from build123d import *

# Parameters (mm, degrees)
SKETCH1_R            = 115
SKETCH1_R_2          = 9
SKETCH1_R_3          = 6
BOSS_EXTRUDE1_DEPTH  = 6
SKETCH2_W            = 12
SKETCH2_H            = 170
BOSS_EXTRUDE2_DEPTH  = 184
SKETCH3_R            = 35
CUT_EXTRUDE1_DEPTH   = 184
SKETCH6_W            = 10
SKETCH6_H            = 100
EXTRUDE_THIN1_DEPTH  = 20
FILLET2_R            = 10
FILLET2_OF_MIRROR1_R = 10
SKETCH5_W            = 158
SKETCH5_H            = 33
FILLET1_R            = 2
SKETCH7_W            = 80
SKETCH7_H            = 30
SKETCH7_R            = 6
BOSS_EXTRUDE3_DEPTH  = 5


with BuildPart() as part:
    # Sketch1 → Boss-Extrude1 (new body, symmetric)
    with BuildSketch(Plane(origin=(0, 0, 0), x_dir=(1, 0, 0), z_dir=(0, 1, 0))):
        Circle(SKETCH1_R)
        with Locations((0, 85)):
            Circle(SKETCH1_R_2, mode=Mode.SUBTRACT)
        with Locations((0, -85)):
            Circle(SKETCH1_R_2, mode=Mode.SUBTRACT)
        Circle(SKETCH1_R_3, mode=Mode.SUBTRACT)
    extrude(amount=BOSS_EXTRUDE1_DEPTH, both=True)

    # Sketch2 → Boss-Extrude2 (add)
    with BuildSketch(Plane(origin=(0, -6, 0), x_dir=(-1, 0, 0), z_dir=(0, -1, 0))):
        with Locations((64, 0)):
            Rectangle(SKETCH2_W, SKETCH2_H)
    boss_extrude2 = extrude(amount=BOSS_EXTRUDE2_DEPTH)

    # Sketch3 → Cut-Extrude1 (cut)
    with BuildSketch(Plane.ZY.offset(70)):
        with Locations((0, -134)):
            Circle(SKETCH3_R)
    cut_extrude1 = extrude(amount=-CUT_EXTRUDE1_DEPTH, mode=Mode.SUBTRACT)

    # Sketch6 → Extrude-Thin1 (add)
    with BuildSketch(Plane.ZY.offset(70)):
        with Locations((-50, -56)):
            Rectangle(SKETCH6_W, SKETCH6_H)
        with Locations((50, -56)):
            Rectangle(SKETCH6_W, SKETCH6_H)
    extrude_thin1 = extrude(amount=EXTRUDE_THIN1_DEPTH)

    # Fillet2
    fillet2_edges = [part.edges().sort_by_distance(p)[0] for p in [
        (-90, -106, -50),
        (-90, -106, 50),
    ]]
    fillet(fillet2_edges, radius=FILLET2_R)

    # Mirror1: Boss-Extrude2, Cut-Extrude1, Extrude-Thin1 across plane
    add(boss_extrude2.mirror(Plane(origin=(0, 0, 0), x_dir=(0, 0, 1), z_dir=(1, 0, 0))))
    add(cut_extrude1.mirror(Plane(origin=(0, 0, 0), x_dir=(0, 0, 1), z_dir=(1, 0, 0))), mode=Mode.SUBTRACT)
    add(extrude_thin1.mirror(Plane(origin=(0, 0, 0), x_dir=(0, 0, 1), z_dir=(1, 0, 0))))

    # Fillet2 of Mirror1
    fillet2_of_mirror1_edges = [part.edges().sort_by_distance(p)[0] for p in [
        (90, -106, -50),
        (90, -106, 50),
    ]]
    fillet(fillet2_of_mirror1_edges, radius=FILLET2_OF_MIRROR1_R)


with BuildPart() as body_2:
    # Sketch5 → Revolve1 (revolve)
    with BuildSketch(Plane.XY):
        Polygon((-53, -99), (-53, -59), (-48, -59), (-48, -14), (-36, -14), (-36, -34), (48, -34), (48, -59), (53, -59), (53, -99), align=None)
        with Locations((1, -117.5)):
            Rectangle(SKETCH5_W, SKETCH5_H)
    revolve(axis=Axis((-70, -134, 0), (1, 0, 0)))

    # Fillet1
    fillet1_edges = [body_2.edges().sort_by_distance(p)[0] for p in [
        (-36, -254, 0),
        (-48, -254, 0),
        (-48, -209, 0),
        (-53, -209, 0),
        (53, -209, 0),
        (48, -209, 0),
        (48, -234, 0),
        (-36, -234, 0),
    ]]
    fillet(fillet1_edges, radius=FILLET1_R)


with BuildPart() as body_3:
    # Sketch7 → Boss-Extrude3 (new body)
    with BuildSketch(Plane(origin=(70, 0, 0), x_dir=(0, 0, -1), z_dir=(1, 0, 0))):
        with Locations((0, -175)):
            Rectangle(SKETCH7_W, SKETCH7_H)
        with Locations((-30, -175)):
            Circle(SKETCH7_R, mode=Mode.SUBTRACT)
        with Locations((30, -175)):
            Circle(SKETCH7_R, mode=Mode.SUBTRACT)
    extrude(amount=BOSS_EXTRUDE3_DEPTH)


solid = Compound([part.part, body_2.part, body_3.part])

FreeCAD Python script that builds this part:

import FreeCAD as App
import Part
import Sketcher
from FreeCAD import Vector


def edges_at(feature, points):
    """Names of the edges that pass closest to the given points."""
    edges = feature.Shape.Edges
    near = lambda p: min(range(len(edges)), key=lambda i: edges[i].distToShape(Part.Vertex(*p))[0])
    return sorted({f"Edge{near(p) + 1}" for p in points})

doc = App.newDocument("Part")
body = doc.addObject("PartDesign::Body", "Body")

sketch1 = body.newObject("Sketcher::SketchObject", "Sketch")
sketch1.AttachmentSupport = (doc.getObject("XZ_Plane"), [""])
sketch1.MapMode = "FlatFace"
sketch1.addGeometry(Part.Circle(Vector(0, 0, 0), Vector(0, 0, 1), 115), False)
sketch1.addGeometry(Part.Circle(Vector(0, 85, 0), Vector(0, 0, 1), 9), False)
sketch1.addGeometry(Part.Circle(Vector(0, 0, 0), Vector(0, 0, 1), 6), False)
sketch1.addGeometry(Part.Circle(Vector(0, -85, 0), Vector(0, 0, 1), 9), False)
sketch1.addConstraint(Sketcher.Constraint("Coincident", 0, 3, -1, 1))
sketch1.addConstraint(Sketcher.Constraint("Coincident", 2, 3, -1, 1))
sketch1.addConstraint(Sketcher.Constraint("Equal", 1, 3))
sketch1.addConstraint(Sketcher.Constraint("Symmetric", 1, 3, 3, 3, -1, 1))
sketch1.addConstraint(Sketcher.Constraint("PointOnObject", 1, 3, -2))
sketch1.addConstraint(Sketcher.Constraint("Diameter", 0, 230.0))
sketch1.addConstraint(Sketcher.Constraint("Diameter", 1, 18.0))
sketch1.addConstraint(Sketcher.Constraint("Diameter", 2, 12.0))
sketch1.addConstraint(Sketcher.Constraint("DistanceY", -1, 1, 1, 3, 85.0))
pad1 = body.newObject("PartDesign::Pad", "Pad")
pad1.Profile = sketch1
pad1.Length = 12
pad1.Midplane = True

sketch2 = body.newObject("Sketcher::SketchObject", "Sketch001")
sketch2.AttachmentSupport = (doc.getObject("XZ_Plane"), [""])
sketch2.MapMode = "FlatFace"
sketch2.AttachmentOffset = App.Placement(Vector(0, 0, 6), App.Rotation())
sketch2.addGeometry(Part.LineSegment(Vector(-58, -85, 0), Vector(-58, 85, 0)), False)
sketch2.addGeometry(Part.LineSegment(Vector(-58, 85, 0), Vector(-70, 85, 0)), False)
sketch2.addGeometry(Part.LineSegment(Vector(-70, 85, 0), Vector(-70, -85, 0)), False)
sketch2.addGeometry(Part.LineSegment(Vector(-70, -85, 0), Vector(-58, -85, 0)), False)
sketch2.addConstraint(Sketcher.Constraint("Coincident", 0, 2, 1, 1))
sketch2.addConstraint(Sketcher.Constraint("Coincident", 1, 2, 2, 1))
sketch2.addConstraint(Sketcher.Constraint("Coincident", 2, 2, 3, 1))
sketch2.addConstraint(Sketcher.Constraint("Coincident", 3, 2, 0, 1))
sketch2.addConstraint(Sketcher.Constraint("Vertical", 0))
sketch2.addConstraint(Sketcher.Constraint("Horizontal", 1))
sketch2.addConstraint(Sketcher.Constraint("Vertical", 2))
sketch2.addConstraint(Sketcher.Constraint("Horizontal", 3))
sketch2.addConstraint(Sketcher.Constraint("DistanceX", 1, 2, 1, 1, 12.0))
sketch2.addConstraint(Sketcher.Constraint("DistanceY", 0, 1, 0, 2, 170.0))
sketch2.addConstraint(Sketcher.Constraint("DistanceX", 0, 2, -1, 1, 58.0))
sketch2.addConstraint(Sketcher.Constraint("DistanceY", -1, 1, 0, 2, 85.0))
pad2 = body.newObject("PartDesign::Pad", "Pad001")
pad2.Profile = sketch2
pad2.Length = 184

sketch3 = body.newObject("Sketcher::SketchObject", "Sketch002")
sketch3.AttachmentSupport = (doc.getObject("YZ_Plane"), [""])
sketch3.MapMode = "FlatFace"
sketch3.AttachmentOffset = App.Placement(Vector(0, 0, -70), App.Rotation())
sketch3.addGeometry(Part.Circle(Vector(-134, 0, 0), Vector(0, 0, 1), 35), False)
sketch3.addConstraint(Sketcher.Constraint("PointOnObject", 0, 3, -1))
sketch3.addConstraint(Sketcher.Constraint("Diameter", 0, 70.0))
sketch3.addConstraint(Sketcher.Constraint("DistanceX", 0, 3, -1, 1, 134.0))
pocket1 = body.newObject("PartDesign::Pocket", "Pocket")
pocket1.Profile = sketch3
pocket1.Length = 184
pocket1.Reversed = True

sketch4 = body.newObject("Sketcher::SketchObject", "Sketch003")
sketch4.AttachmentSupport = (doc.getObject("YZ_Plane"), [""])
sketch4.MapMode = "FlatFace"
sketch4.AttachmentOffset = App.Placement(Vector(0, 0, -70), App.Rotation())
sketch4.addGeometry(Part.LineSegment(Vector(-6, -55, 0), Vector(-106, -55, 0)), False)
sketch4.addGeometry(Part.LineSegment(Vector(-106, -55, 0), Vector(-106, -45, 0)), False)
sketch4.addGeometry(Part.LineSegment(Vector(-106, -45, 0), Vector(-6, -45, 0)), False)
sketch4.addGeometry(Part.LineSegment(Vector(-6, -45, 0), Vector(-6, -55, 0)), False)
sketch4.addGeometry(Part.LineSegment(Vector(-6, 45, 0), Vector(-106, 45, 0)), False)
sketch4.addGeometry(Part.LineSegment(Vector(-106, 45, 0), Vector(-106, 55, 0)), False)
sketch4.addGeometry(Part.LineSegment(Vector(-106, 55, 0), Vector(-6, 55, 0)), False)
sketch4.addGeometry(Part.LineSegment(Vector(-6, 55, 0), Vector(-6, 45, 0)), False)
sketch4.addConstraint(Sketcher.Constraint("Coincident", 0, 2, 1, 1))
sketch4.addConstraint(Sketcher.Constraint("Coincident", 1, 2, 2, 1))
sketch4.addConstraint(Sketcher.Constraint("Coincident", 2, 2, 3, 1))
sketch4.addConstraint(Sketcher.Constraint("Coincident", 3, 2, 0, 1))
sketch4.addConstraint(Sketcher.Constraint("Coincident", 4, 2, 5, 1))
sketch4.addConstraint(Sketcher.Constraint("Coincident", 5, 2, 6, 1))
sketch4.addConstraint(Sketcher.Constraint("Coincident", 6, 2, 7, 1))
sketch4.addConstraint(Sketcher.Constraint("Coincident", 7, 2, 4, 1))
sketch4.addConstraint(Sketcher.Constraint("Horizontal", 0))
sketch4.addConstraint(Sketcher.Constraint("Vertical", 1))
sketch4.addConstraint(Sketcher.Constraint("Horizontal", 2))
sketch4.addConstraint(Sketcher.Constraint("Vertical", 3))
sketch4.addConstraint(Sketcher.Constraint("Horizontal", 4))
sketch4.addConstraint(Sketcher.Constraint("Vertical", 5))
sketch4.addConstraint(Sketcher.Constraint("Horizontal", 6))
sketch4.addConstraint(Sketcher.Constraint("Vertical", 7))
sketch4.addConstraint(Sketcher.Constraint("Symmetric", 1, 2, 4, 2, -1))
sketch4.addConstraint(Sketcher.Constraint("Symmetric", 3, 2, 6, 2, -1))
sketch4.addConstraint(Sketcher.Constraint("DistanceX", 0, 2, 0, 1, 100.0))
sketch4.addConstraint(Sketcher.Constraint("DistanceY", 1, 1, 1, 2, 10.0))
sketch4.addConstraint(Sketcher.Constraint("DistanceX", 0, 2, -1, 1, 106.0))
sketch4.addConstraint(Sketcher.Constraint("DistanceY", 0, 2, -1, 1, 55.0))
pad3 = body.newObject("PartDesign::Pad", "Pad002")
pad3.Profile = sketch4
pad3.Length = 20
pad3.Reversed = True
doc.recompute()

fillet = body.newObject("PartDesign::Fillet", "Fillet")
fillet.Base = (pad3, edges_at(pad3, [(-90, -106, -50), (-90, -106, 50)]))
fillet.Radius = 10
doc.recompute()

mirrored = body.newObject("PartDesign::Mirrored", "Mirrored")
mirrored.Originals = [pad2, pocket1, pad3]
mirrored.MirrorPlane = (doc.getObject("YZ_Plane"), [""])
body.Tip = mirrored
doc.recompute()

fillet2 = body.newObject("PartDesign::Fillet", "Fillet001")
fillet2.Base = (mirrored, edges_at(mirrored, [(90, -106, -50), (90, -106, 50)]))
fillet2.Radius = 10
body2 = doc.addObject("PartDesign::Body", "Body001")
body2.AllowCompound = True

sketch5 = body2.newObject("Sketcher::SketchObject", "Sketch004")
sketch5.AttachmentSupport = (doc.getObject("XY_Plane001"), [""])
sketch5.MapMode = "FlatFace"
sketch5.addGeometry(Part.LineSegment(Vector(-53, -59, 0), Vector(-53, -99, 0)), False)
sketch5.addGeometry(Part.LineSegment(Vector(-53, -99, 0), Vector(53, -99, 0)), False)
sketch5.addGeometry(Part.LineSegment(Vector(53, -99, 0), Vector(53, -59, 0)), False)
sketch5.addGeometry(Part.LineSegment(Vector(53, -59, 0), Vector(48, -59, 0)), False)
sketch5.addGeometry(Part.LineSegment(Vector(48, -59, 0), Vector(48, -34, 0)), False)
sketch5.addGeometry(Part.LineSegment(Vector(48, -34, 0), Vector(-36, -34, 0)), False)
sketch5.addGeometry(Part.LineSegment(Vector(-36, -34, 0), Vector(-36, -14, 0)), False)
sketch5.addGeometry(Part.LineSegment(Vector(-36, -14, 0), Vector(-48, -14, 0)), False)
sketch5.addGeometry(Part.LineSegment(Vector(-48, -14, 0), Vector(-48, -59, 0)), False)
sketch5.addGeometry(Part.LineSegment(Vector(-48, -59, 0), Vector(-53, -59, 0)), False)
sketch5.addGeometry(Part.LineSegment(Vector(-78, -101, 0), Vector(-78, -134, 0)), False)
sketch5.addGeometry(Part.LineSegment(Vector(-78, -134, 0), Vector(80, -134, 0)), False)
sketch5.addGeometry(Part.LineSegment(Vector(80, -134, 0), Vector(80, -101, 0)), False)
sketch5.addGeometry(Part.LineSegment(Vector(80, -101, 0), Vector(-78, -101, 0)), False)
sketch5.addGeometry(Part.LineSegment(Vector(-78, -134, 0), Vector(80, -134, 0)), True)
sketch5.addConstraint(Sketcher.Constraint("Coincident", 0, 2, 1, 1))
sketch5.addConstraint(Sketcher.Constraint("Coincident", 1, 2, 2, 1))
sketch5.addConstraint(Sketcher.Constraint("Coincident", 2, 2, 3, 1))
sketch5.addConstraint(Sketcher.Constraint("Coincident", 3, 2, 4, 1))
sketch5.addConstraint(Sketcher.Constraint("Coincident", 4, 2, 5, 1))
sketch5.addConstraint(Sketcher.Constraint("Coincident", 5, 2, 6, 1))
sketch5.addConstraint(Sketcher.Constraint("Coincident", 6, 2, 7, 1))
sketch5.addConstraint(Sketcher.Constraint("Coincident", 7, 2, 8, 1))
sketch5.addConstraint(Sketcher.Constraint("Coincident", 8, 2, 9, 1))
sketch5.addConstraint(Sketcher.Constraint("Coincident", 9, 2, 0, 1))
sketch5.addConstraint(Sketcher.Constraint("Coincident", 10, 2, 11, 1))
sketch5.addConstraint(Sketcher.Constraint("Coincident", 11, 2, 12, 1))
sketch5.addConstraint(Sketcher.Constraint("Coincident", 12, 2, 13, 1))
sketch5.addConstraint(Sketcher.Constraint("Coincident", 13, 2, 10, 1))
sketch5.addConstraint(Sketcher.Constraint("Vertical", 0))
sketch5.addConstraint(Sketcher.Constraint("Horizontal", 1))
sketch5.addConstraint(Sketcher.Constraint("Vertical", 2))
sketch5.addConstraint(Sketcher.Constraint("Horizontal", 3))
sketch5.addConstraint(Sketcher.Constraint("Vertical", 4))
sketch5.addConstraint(Sketcher.Constraint("Horizontal", 5))
sketch5.addConstraint(Sketcher.Constraint("Vertical", 6))
sketch5.addConstraint(Sketcher.Constraint("Horizontal", 7))
sketch5.addConstraint(Sketcher.Constraint("Vertical", 8))
sketch5.addConstraint(Sketcher.Constraint("Horizontal", 9))
sketch5.addConstraint(Sketcher.Constraint("Vertical", 10))
sketch5.addConstraint(Sketcher.Constraint("Horizontal", 11))
sketch5.addConstraint(Sketcher.Constraint("Vertical", 12))
sketch5.addConstraint(Sketcher.Constraint("Horizontal", 13))
sketch5.addConstraint(Sketcher.Constraint("Horizontal", 14))
sketch5.addConstraint(Sketcher.Constraint("Coincident", 14, 1, 10, 2))
sketch5.addConstraint(Sketcher.Constraint("Symmetric", 3, 2, 8, 2, -2))
sketch5.addConstraint(Sketcher.Constraint("Vertical", 12, 2, 14, 2))
sketch5.addConstraint(Sketcher.Constraint("Equal", 3, 9))
sketch5.addConstraint(Sketcher.Constraint("DistanceX", 1, 1, 1, 2, 106.0))
sketch5.addConstraint(Sketcher.Constraint("DistanceX", 3, 2, 3, 1, 5.0))
sketch5.addConstraint(Sketcher.Constraint("DistanceX", 5, 2, 5, 1, 84.0))
sketch5.addConstraint(Sketcher.Constraint("DistanceX", 11, 1, 11, 2, 158.0))
sketch5.addConstraint(Sketcher.Constraint("DistanceY", 0, 2, 0, 1, 40.0))
sketch5.addConstraint(Sketcher.Constraint("DistanceY", 4, 1, 4, 2, 25.0))
sketch5.addConstraint(Sketcher.Constraint("DistanceY", 6, 1, 6, 2, 20.0))
sketch5.addConstraint(Sketcher.Constraint("DistanceY", 10, 2, 10, 1, 33.0))
sketch5.addConstraint(Sketcher.Constraint("DistanceY", 0, 2, -1, 1, 99.0))
sketch5.addConstraint(Sketcher.Constraint("DistanceX", 10, 2, -1, 1, 78.0))
sketch5.addConstraint(Sketcher.Constraint("DistanceY", 10, 2, -1, 1, 134.0))
revolution = body2.newObject("PartDesign::Revolution", "Revolution")
revolution.Profile = sketch5
revolution.ReferenceAxis = (sketch5, ["Axis0"])
revolution.Angle = 360
doc.recompute()

fillet3 = body2.newObject("PartDesign::Fillet", "Fillet002")
fillet3.Base = (revolution, edges_at(revolution, [
    (-36, -254, 0),
    (-48, -254, 0),
    (-48, -209, 0),
    (-53, -209, 0),
    (53, -209, 0),
    (48, -209, 0),
    (48, -234, 0),
    (-36, -234, 0),
]))
fillet3.Radius = 2
body3 = doc.addObject("PartDesign::Body", "Body002")

sketch6 = body3.newObject("Sketcher::SketchObject", "Sketch005")
sketch6.AttachmentSupport = (doc.getObject("YZ_Plane002"), [""])
sketch6.MapMode = "FlatFace"
sketch6.AttachmentOffset = App.Placement(Vector(0, 0, 70), App.Rotation())
sketch6.addGeometry(Part.LineSegment(Vector(-160, 40, 0), Vector(-190, 40, 0)), False)
sketch6.addGeometry(Part.LineSegment(Vector(-190, 40, 0), Vector(-190, -40, 0)), False)
sketch6.addGeometry(Part.LineSegment(Vector(-190, -40, 0), Vector(-160, -40, 0)), False)
sketch6.addGeometry(Part.LineSegment(Vector(-160, -40, 0), Vector(-160, 40, 0)), False)
sketch6.addGeometry(Part.Circle(Vector(-175, 30, 0), Vector(0, 0, 1), 6), False)
sketch6.addGeometry(Part.Circle(Vector(-175, -30, 0), Vector(0, 0, 1), 6), False)
sketch6.addConstraint(Sketcher.Constraint("Coincident", 0, 2, 1, 1))
sketch6.addConstraint(Sketcher.Constraint("Coincident", 1, 2, 2, 1))
sketch6.addConstraint(Sketcher.Constraint("Coincident", 2, 2, 3, 1))
sketch6.addConstraint(Sketcher.Constraint("Coincident", 3, 2, 0, 1))
sketch6.addConstraint(Sketcher.Constraint("Horizontal", 0))
sketch6.addConstraint(Sketcher.Constraint("Vertical", 1))
sketch6.addConstraint(Sketcher.Constraint("Horizontal", 2))
sketch6.addConstraint(Sketcher.Constraint("Vertical", 3))
sketch6.addConstraint(Sketcher.Constraint("Equal", 4, 5))
sketch6.addConstraint(Sketcher.Constraint("Symmetric", 4, 3, 5, 3, -1))
sketch6.addConstraint(Sketcher.Constraint("Diameter", 4, 12.0))
sketch6.addConstraint(Sketcher.Constraint("DistanceX", 0, 2, 0, 1, 30.0))
sketch6.addConstraint(Sketcher.Constraint("DistanceY", 1, 2, 1, 1, 80.0))
sketch6.addConstraint(Sketcher.Constraint("DistanceX", 4, 3, -1, 1, 175.0))
sketch6.addConstraint(Sketcher.Constraint("DistanceY", -1, 1, 4, 3, 30.0))
sketch6.addConstraint(Sketcher.Constraint("DistanceX", 0, 2, -1, 1, 190.0))
sketch6.addConstraint(Sketcher.Constraint("DistanceY", -1, 1, 0, 2, 40.0))
pad4 = body3.newObject("PartDesign::Pad", "Pad003")
pad4.Profile = sketch6
pad4.Length = 5

doc.recompute()
